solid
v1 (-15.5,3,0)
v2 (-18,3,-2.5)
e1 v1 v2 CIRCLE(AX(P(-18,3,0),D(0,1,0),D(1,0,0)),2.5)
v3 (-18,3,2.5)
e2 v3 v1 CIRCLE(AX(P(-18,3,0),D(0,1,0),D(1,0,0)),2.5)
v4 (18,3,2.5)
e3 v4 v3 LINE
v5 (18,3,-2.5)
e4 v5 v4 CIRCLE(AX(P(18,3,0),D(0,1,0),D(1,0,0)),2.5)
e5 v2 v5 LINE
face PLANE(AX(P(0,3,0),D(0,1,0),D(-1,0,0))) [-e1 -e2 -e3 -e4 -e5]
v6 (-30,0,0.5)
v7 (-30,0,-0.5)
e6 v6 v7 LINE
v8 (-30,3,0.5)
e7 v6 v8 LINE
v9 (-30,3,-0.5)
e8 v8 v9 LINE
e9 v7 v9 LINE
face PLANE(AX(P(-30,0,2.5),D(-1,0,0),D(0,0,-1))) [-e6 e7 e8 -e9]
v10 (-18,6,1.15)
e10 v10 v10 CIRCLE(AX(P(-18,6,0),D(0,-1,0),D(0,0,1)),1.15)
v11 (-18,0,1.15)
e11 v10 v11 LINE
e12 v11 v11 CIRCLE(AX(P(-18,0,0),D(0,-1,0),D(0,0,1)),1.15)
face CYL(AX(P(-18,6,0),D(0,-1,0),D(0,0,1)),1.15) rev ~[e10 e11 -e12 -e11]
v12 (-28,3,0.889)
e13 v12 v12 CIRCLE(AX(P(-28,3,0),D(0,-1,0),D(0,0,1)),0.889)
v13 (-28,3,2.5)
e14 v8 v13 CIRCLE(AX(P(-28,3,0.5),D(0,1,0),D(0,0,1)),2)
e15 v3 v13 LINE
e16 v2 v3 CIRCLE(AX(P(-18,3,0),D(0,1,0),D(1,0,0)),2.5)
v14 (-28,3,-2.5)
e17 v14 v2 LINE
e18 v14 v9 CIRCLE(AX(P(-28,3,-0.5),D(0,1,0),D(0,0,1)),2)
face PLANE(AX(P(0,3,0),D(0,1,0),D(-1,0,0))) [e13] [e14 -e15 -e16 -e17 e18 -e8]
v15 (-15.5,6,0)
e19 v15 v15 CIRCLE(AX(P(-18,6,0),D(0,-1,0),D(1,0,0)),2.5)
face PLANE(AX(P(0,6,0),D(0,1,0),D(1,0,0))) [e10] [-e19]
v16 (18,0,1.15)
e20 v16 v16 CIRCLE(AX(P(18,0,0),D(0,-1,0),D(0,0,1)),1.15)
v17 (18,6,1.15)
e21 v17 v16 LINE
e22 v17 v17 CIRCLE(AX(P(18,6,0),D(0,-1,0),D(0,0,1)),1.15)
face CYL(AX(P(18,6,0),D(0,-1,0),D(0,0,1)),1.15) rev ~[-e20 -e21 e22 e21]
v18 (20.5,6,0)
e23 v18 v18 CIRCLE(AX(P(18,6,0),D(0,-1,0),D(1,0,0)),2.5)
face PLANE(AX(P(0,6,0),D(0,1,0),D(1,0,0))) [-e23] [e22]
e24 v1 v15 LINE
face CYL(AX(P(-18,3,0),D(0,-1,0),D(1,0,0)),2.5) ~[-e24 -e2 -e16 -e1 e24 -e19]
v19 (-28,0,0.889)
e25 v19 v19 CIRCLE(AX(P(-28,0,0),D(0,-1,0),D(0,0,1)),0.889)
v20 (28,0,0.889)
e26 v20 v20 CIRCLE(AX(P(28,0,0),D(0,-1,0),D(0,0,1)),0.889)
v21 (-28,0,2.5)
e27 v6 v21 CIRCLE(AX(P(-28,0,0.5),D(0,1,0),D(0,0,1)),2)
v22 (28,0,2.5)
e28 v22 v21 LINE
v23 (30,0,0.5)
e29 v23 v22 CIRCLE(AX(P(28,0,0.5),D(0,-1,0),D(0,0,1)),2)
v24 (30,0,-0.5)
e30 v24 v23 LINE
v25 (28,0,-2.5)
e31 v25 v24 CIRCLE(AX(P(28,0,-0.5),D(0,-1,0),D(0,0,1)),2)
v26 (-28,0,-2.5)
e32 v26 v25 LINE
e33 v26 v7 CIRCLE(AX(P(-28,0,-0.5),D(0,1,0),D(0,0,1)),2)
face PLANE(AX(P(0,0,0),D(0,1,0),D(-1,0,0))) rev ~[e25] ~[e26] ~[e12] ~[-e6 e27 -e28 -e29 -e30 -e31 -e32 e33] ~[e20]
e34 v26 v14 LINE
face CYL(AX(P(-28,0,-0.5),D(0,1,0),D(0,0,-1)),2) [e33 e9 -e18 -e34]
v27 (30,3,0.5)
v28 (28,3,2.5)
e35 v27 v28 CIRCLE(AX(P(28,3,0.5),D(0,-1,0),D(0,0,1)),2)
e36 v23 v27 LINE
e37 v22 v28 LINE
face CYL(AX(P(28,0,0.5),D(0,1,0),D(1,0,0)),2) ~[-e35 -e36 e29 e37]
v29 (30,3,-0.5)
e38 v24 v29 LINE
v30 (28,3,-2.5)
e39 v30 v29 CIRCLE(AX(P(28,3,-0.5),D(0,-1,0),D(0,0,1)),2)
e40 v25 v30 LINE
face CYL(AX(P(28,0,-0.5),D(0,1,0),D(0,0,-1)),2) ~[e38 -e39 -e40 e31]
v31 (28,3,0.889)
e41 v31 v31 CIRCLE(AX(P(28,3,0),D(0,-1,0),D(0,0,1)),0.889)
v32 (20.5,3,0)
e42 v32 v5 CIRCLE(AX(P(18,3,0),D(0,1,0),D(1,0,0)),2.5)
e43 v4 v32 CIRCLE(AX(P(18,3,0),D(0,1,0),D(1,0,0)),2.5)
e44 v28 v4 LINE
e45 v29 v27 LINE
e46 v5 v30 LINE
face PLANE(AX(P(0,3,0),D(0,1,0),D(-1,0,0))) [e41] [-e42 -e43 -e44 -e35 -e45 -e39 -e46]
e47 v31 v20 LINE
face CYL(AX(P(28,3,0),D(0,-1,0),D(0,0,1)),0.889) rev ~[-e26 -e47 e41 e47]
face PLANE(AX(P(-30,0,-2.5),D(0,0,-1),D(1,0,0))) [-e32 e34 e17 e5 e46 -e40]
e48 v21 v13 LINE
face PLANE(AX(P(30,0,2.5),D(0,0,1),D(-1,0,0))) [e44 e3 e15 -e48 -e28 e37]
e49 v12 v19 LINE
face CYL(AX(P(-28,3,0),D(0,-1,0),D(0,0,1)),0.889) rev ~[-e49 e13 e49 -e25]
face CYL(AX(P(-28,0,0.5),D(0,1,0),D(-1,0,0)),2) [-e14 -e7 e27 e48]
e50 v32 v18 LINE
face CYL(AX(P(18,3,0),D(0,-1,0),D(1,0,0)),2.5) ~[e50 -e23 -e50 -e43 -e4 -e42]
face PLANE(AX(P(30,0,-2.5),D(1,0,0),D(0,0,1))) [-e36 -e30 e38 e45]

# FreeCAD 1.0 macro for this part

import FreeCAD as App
import Part
import Sketcher
from FreeCAD import Vector
Q = App.Units.Quantity


def edges_at(feature, points):
    """Names of the edges that pass closest to the given points."""
    edges = feature.Shape.Edges
    near = lambda p: min(range(len(edges)), key=lambda i: edges[i].distToShape(Part.Vertex(*p))[0])
    return sorted({f"Edge{near(p) + 1}" for p in points})

doc = App.newDocument("Part")
body = doc.addObject("PartDesign::Body", "Body")

# Sketch on XZ plane
sketch1 = body.newObject("Sketcher::SketchObject", "Sketch")
sketch1.AttachmentSupport = (doc.getObject("XZ_Plane"), [""])
sketch1.MapMode = "FlatFace"
sketch1.addGeometry([
    Part.LineSegment(Vector(30, -2, 0), Vector(-30, -2, 0)),
    Part.LineSegment(Vector(-30, -2, 0), Vector(-30, 2, 0)),
    Part.LineSegment(Vector(-30, 2, 0), Vector(30, 2, 0)),
    Part.LineSegment(Vector(30, 2, 0), Vector(30, -2, 0)),
], False)
sketch1.addConstraint([
    Sketcher.Constraint("Coincident", 0, 2, 1, 1),
    Sketcher.Constraint("Coincident", 1, 2, 2, 1),
    Sketcher.Constraint("Coincident", 2, 2, 3, 1),
    Sketcher.Constraint("Coincident", 3, 2, 0, 1),
    Sketcher.Constraint("Horizontal", 0),
    Sketcher.Constraint("Vertical", 1),
    Sketcher.Constraint("Horizontal", 2),
    Sketcher.Constraint("Vertical", 3),
    Sketcher.Constraint("Symmetric", 0, 2, 2, 2, -1, 1),
    Sketcher.Constraint("DistanceX", 0, 2, 0, 1, Q("60 mm")),
    Sketcher.Constraint("DistanceY", 1, 1, 1, 2, Q("5 mm")),
])
pad1 = body.newObject("PartDesign::Pad", "Pad")
pad1.Profile = sketch1
pad1.Length = 3
pad1.Reversed = True

# Sketch on XZ plane
sketch2 = body.newObject("Sketcher::SketchObject", "Sketch001")
sketch2.AttachmentSupport = (doc.getObject("XZ_Plane"), [""])
sketch2.MapMode = "FlatFace"
sketch2.AttachmentOffset = App.Placement(Vector(0, 0, -3), App.Rotation())
sketch2.addGeometry([
    Part.Circle(Vector(-18, 0, 0), Vector(0, 0, 1), 2.5),
    Part.Circle(Vector(18, 0, 0), Vector(0, 0, 1), 2.5),
], False)
sketch2.addConstraint([
    Sketcher.Constraint("Equal", 0, 1),
    Sketcher.Constraint("Symmetric", 0, 3, 1, 3, -1, 1),
    Sketcher.Constraint("PointOnObject", 0, 3, -1),
    Sketcher.Constraint("Diameter", 0, Q("5 mm")),
    Sketcher.Constraint("DistanceX", 0, 3, -1, 1, Q("18 mm")),
])
pad2 = body.newObject("PartDesign::Pad", "Pad001")
pad2.Profile = sketch2
pad2.Length = 3
pad2.Reversed = True

# Sketch on XZ plane
sketch3 = body.newObject("Sketcher::SketchObject", "Sketch002")
sketch3.AttachmentSupport = (doc.getObject("XZ_Plane"), [""])
sketch3.MapMode = "FlatFace"
sketch3.AttachmentOffset = App.Placement(Vector(0, 0, -6), App.Rotation())
sketch3.addGeometry([
    Part.Circle(Vector(-18, 0, 0), Vector(0, 0, 1), 1.1),
    Part.Circle(Vector(18, 0, 0), Vector(0, 0, 1), 1.1),
], False)
sketch3.addConstraint([
    Sketcher.Constraint("Equal", 0, 1),
    Sketcher.Constraint("Symmetric", 0, 3, 1, 3, -1, 1),
    Sketcher.Constraint("PointOnObject", 0, 3, -1),
    Sketcher.Constraint("Diameter", 0, Q("2.3 mm")),
    Sketcher.Constraint("DistanceX", 0, 3, -1, 1, Q("18 mm")),
])
doc.recompute()
hole = body.newObject("PartDesign::Hole", "Hole")
hole.Profile = sketch3
hole.ThreadType = "None"
hole.Diameter = 2.3
hole.DepthType = "ThroughAll"
hole.Reversed = True
doc.recompute()

fillet = body.newObject("PartDesign::Fillet", "Fillet")
fillet.Base = (hole, edges_at(hole, [
    (-30, 1.5, -2.5),
    (-30, 1.5, 2.5),
    (30, 1.5, -2.5),
    (30, 1.5, 2.5),
]))
fillet.Radius = 2

# Sketch on XZ plane
sketch4 = body.newObject("Sketcher::SketchObject", "Sketch003")
sketch4.AttachmentSupport = (doc.getObject("XZ_Plane"), [""])
sketch4.MapMode = "FlatFace"
sketch4.AttachmentOffset = App.Placement(Vector(0, 0, -3), App.Rotation())
sketch4.addGeometry([
    Part.Circle(Vector(-28, 0, 0), Vector(0, 0, 1), 0.9),
    Part.Circle(Vector(28, 0, 0), Vector(0, 0, 1), 0.9),
], False)
sketch4.addConstraint([
    Sketcher.Constraint("Equal", 0, 1),
    Sketcher.Constraint("Symmetric", 0, 3, 1, 3, -1, 1),
    Sketcher.Constraint("PointOnObject", 0, 3, -1),
    Sketcher.Constraint("Diameter", 0, Q("1.778 mm")),
    Sketcher.Constraint("DistanceX", 0, 3, -1, 1, Q("28 mm")),
])
doc.recompute()
hole2 = body.newObject("PartDesign::Hole", "Hole001")
hole2.Profile = sketch4
hole2.ThreadType = "None"
hole2.Diameter = 1.778
hole2.DepthType = "ThroughAll"
hole2.Reversed = True

doc.recompute()
